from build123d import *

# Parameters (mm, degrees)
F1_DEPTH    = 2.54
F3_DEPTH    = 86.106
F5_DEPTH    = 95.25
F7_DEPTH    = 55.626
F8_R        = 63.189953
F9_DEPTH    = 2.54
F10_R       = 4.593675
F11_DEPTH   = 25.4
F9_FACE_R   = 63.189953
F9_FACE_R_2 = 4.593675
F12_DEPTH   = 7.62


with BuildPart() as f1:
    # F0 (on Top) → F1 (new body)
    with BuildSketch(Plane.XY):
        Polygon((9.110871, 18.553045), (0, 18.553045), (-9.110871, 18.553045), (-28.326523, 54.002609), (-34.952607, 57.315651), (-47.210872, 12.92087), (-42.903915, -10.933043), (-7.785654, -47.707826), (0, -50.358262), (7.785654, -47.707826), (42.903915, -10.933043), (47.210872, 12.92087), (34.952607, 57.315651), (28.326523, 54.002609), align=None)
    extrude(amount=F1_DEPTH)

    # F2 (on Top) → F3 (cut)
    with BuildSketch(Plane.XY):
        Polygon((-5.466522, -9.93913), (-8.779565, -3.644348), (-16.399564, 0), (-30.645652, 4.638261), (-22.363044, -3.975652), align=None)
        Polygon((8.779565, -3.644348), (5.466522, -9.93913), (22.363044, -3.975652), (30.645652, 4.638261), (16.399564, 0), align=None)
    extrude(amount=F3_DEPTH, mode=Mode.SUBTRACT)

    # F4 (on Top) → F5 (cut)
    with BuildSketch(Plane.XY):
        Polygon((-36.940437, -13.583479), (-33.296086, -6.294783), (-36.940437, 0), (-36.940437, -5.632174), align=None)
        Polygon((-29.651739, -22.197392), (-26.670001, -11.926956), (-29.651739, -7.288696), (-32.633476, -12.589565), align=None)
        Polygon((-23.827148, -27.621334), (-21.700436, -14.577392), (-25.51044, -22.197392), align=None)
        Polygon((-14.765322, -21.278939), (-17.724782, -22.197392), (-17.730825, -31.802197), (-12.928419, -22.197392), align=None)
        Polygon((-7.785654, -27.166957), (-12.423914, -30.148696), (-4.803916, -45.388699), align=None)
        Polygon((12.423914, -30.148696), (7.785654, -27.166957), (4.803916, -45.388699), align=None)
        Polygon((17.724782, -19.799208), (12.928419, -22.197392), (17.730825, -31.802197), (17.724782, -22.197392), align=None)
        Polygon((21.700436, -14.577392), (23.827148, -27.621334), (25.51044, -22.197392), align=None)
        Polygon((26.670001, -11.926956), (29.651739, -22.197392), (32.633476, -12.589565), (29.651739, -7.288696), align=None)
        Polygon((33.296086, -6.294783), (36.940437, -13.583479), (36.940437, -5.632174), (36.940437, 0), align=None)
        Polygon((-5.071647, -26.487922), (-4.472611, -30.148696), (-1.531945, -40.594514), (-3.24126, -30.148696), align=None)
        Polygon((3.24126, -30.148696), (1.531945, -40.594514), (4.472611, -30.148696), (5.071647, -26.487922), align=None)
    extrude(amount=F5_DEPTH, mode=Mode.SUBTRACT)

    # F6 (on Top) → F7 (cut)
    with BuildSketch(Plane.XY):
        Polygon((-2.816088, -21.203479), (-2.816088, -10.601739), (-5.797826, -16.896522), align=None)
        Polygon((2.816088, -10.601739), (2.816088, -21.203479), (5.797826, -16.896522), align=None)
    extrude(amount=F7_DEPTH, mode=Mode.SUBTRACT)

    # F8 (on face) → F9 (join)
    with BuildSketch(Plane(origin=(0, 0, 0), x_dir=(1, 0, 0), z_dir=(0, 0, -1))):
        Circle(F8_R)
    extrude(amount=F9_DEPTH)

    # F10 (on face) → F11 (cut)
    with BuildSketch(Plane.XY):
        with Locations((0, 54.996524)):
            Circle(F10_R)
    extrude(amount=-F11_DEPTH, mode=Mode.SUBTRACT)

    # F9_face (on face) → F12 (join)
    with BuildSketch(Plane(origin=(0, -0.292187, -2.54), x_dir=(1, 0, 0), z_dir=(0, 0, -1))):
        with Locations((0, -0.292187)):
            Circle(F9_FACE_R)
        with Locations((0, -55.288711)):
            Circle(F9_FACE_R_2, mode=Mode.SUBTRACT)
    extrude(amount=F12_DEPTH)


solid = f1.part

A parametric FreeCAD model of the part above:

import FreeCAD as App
import Part
import Sketcher

V = App.Vector
Q = App.Units.Quantity


def add_polygon(sketch, points):
    """Adds a closed chain of lines whose ends are joined by coincident constraints."""
    first, n = sketch.GeometryCount, len(points)
    for a, b in zip(points, points[1:] + points[:1]):
        sketch.addGeometry(Part.LineSegment(App.Vector(*a, 0), App.Vector(*b, 0)), False)
    for i in range(n):
        sketch.addConstraint(Sketcher.Constraint("Coincident", first + i, 2, first + (i + 1) % n, 1))

doc = App.newDocument("Part")
body = doc.addObject("PartDesign::Body", "Body")

# Sketch on XY plane
sketch1 = doc.addObject("Sketcher::SketchObject", "Sketch")
body.addObject(sketch1)
sketch1.AttachmentSupport = (doc.XY_Plane, [""])
sketch1.MapMode = "FlatFace"
add_polygon(sketch1, [(9, 19), (-9, 19), (-28, 54), (-35, 57), (-47, 13), (-43, -11), (-8, -48), (0, -50), (8, -48), (43, -11), (47, 13), (35, 57), (28, 54)])  # lines 0-12
sketch1.addConstraint([
    Sketcher.Constraint("Horizontal", 0),
    Sketcher.Constraint("Symmetric", 5, 2, 7, 2, -2),
    Sketcher.Constraint("Symmetric", 4, 2, 8, 2, -2),
    Sketcher.Constraint("Symmetric", 3, 2, 9, 2, -2),
    Sketcher.Constraint("Symmetric", 2, 2, 10, 2, -2),
    Sketcher.Constraint("Symmetric", 1, 2, 11, 2, -2),
    Sketcher.Constraint("PointOnObject", 6, 2, -2),
    Sketcher.Constraint("Equal", 1, 12),
    Sketcher.Constraint("DistanceX", 3, 2, 0, 2, Q("1.5 in")),
    Sketcher.Constraint("DistanceX", 0, 2, 0, 1, Q("18.221742 mm")),
    Sketcher.Constraint("Distance", 1, Q("40.32261 mm")),
    Sketcher.Constraint("Distance", 3, Q("46.056071 mm")),
    Sketcher.Constraint("Distance", 5, Q("50.849552 mm")),
    Sketcher.Constraint("Distance", 6, Q("8.224428 mm")),
    Sketcher.Constraint("DistanceY", -1, 1, 1, 2, Q("54.002609 mm")),
    Sketcher.Constraint("DistanceY", -1, 1, 2, 2, Q("57.315651 mm")),
    Sketcher.Constraint("DistanceY", -1, 1, 3, 2, Q("12.92087 mm")),
    Sketcher.Constraint("DistanceX", 3, 2, 1, 2, Q("18.884349 mm")),
    Sketcher.Constraint("DistanceY", 4, 2, 0, 2, Q("29.486088 mm")),
    Sketcher.Constraint("DistanceX", 4, 2, 1, 2, Q("14.577392 mm")),
    Sketcher.Constraint("DistanceX", 4, 2, 5, 2, Q("35.118261 mm")),
])
pad1 = doc.addObject("PartDesign::Pad", "Pad")
body.addObject(pad1)
pad1.Profile = sketch1
pad1.Length = Q("0.1 in")

# Sketch on XY plane
sketch2 = doc.addObject("Sketcher::SketchObject", "Sketch001")
body.addObject(sketch2)
sketch2.AttachmentSupport = (doc.XY_Plane, [""])
sketch2.MapMode = "FlatFace"
add_polygon(sketch2, [(-5, -10), (-9, -4), (-16, 0), (-31, 5), (-22, -4)])  # lines 0-4
add_polygon(sketch2, [(9, -4), (5, -10), (22, -4), (31, 5), (16, 0)])  # lines 5-9
sketch2.addConstraint([
    Sketcher.Constraint("Symmetric", 1, 2, 8, 2, -1, 1),
    Sketcher.Constraint("Symmetric", 4, 2, 5, 2, -2),
    Sketcher.Constraint("Symmetric", 3, 2, 6, 2, -2),
    Sketcher.Constraint("Symmetric", 2, 2, 7, 2, -2),
    Sketcher.Constraint("Symmetric", 0, 2, 9, 2, -2),
    Sketcher.Constraint("PointOnObject", 1, 2, -1),
    Sketcher.Constraint("DistanceX", 1, 2, 0, 2, Q("0.3 in")),
    Sketcher.Constraint("Distance", 2, Q("14.982139 mm")),
    Sketcher.Constraint("Distance", 3, Q("11.949941 mm")),
    Sketcher.Constraint("DistanceX", 2, 2, -1, 1, Q("30.645652 mm")),
    Sketcher.Constraint("DistanceY", -1, 1, 2, 2, Q("4.638261 mm")),
    Sketcher.Constraint("DistanceY", 4, 2, -1, 1, Q("9.93913 mm")),
    Sketcher.Constraint("DistanceY", 0, 2, 2, 2, Q("8.282609 mm")),
    Sketcher.Constraint("DistanceX", 3, 2, 1, 2, Q("5.96348 mm")),
    Sketcher.Constraint("DistanceX", 3, 2, 4, 2, Q("16.896522 mm")),
])
pocket1 = doc.addObject("PartDesign::Pocket", "Pocket")
body.addObject(pocket1)
pocket1.Profile = sketch2
pocket1.Length = Q("3.39 in")
pocket1.Reversed = True

# Sketch on XY plane
sketch3 = doc.addObject("Sketcher::SketchObject", "Sketch002")
body.addObject(sketch3)
sketch3.AttachmentSupport = (doc.XY_Plane, [""])
sketch3.MapMode = "FlatFace"
add_polygon(sketch3, [(-36.940437, -13.583479), (-33.296086, -6.294783), (-36.940437, 0)])  # lines 0-2
add_polygon(sketch3, [(-29.651739, -22.197392), (-26.670001, -11.926956), (-29.651739, -7.288696), (-32.633476, -12.589565)])  # lines 3-6
add_polygon(sketch3, [(-23.827148, -27.621334), (-21.700436, -14.577392), (-25.51044, -22.197392)])  # lines 7-9
add_polygon(sketch3, [(-14.765322, -21.278939), (-17.724782, -22.197392), (-17.730825, -31.802197), (-12.928419, -22.197392)])  # lines 10-13
add_polygon(sketch3, [(-7.785654, -27.166957), (-12.423914, -30.148696), (-4.803916, -45.388699)])  # lines 14-16
add_polygon(sketch3, [(12.423914, -30.148696), (7.785654, -27.166957), (4.803916, -45.388699)])  # lines 17-19
add_polygon(sketch3, [(17.724782, -19.799208), (12.928419, -22.197392), (17.730825, -31.802197), (17.724782, -22.197392)])  # lines 20-23
add_polygon(sketch3, [(21.700436, -14.577392), (23.827148, -27.621334), (25.51044, -22.197392)])  # lines 24-26
add_polygon(sketch3, [(26.670001, -11.926956), (29.651739, -22.197392), (32.633476, -12.589565), (29.651739, -7.288696)])  # lines 27-30
add_polygon(sketch3, [(33.296086, -6.294783), (36.940437, -13.583479), (36.940437, 0)])  # lines 31-33
add_polygon(sketch3, [(-5.071647, -26.487922), (-4.472611, -30.148696), (-1.531945, -40.594514), (-3.24126, -30.148696)])  # lines 34-37
add_polygon(sketch3, [(3.24126, -30.148696), (1.531945, -40.594514), (4.472611, -30.148696), (5.071647, -26.487922)])  # lines 38-41
sketch3.addConstraint([
    Sketcher.Constraint("Vertical", 2),
    Sketcher.Constraint("Vertical", 23),
    Sketcher.Constraint("Vertical", 32),
    Sketcher.Constraint("PointOnObject", 1, 2, -1),
    Sketcher.Constraint("PointOnObject", 32, 2, -1),
    Sketcher.Constraint("DistanceY", 6, 2, 7, 2, Q("0.3 in")),
    Sketcher.Constraint("DistanceY", 8, 2, 7, 2, Q("0.3 in")),
    Sketcher.Constraint("DistanceY", 10, 2, 7, 2, Q("0.3 in")),
    Sketcher.Constraint("DistanceY", 12, 2, 7, 2, Q("0.3 in")),
    Sketcher.Constraint("DistanceX", 14, 2, 15, 2, Q("0.2999999 in")),
    Sketcher.Constraint("DistanceY", 15, 2, 14, 2, Q("0.6000001 in")),
    Sketcher.Constraint("DistanceY", 18, 2, 14, 2, Q("0.6000001 in")),
    Sketcher.Constraint("DistanceX", 18, 2, 19, 2, Q("0.2999999 in")),
    Sketcher.Constraint("DistanceY", 18, 2, 19, 2, Q("0.6000001 in")),
    Sketcher.Constraint("DistanceY", 25, 2, 26, 2, Q("0.3 in")),
    Sketcher.Constraint("DistanceY", 22, 2, 26, 2, Q("0.3 in")),
    Sketcher.Constraint("DistanceY", 20, 2, 26, 2, Q("0.3 in")),
    Sketcher.Constraint("DistanceY", 27, 2, 26, 2, Q("0.3 in")),
    Sketcher.Constraint("DistanceX", 26, 2, 32, 2, Q("0.6 in")),
    Sketcher.Constraint("DistanceX", 3, 2, -1, 1, Q("1.05 in")),
    Sketcher.Constraint("DistanceX", -1, 1, 30, 2, Q("1.05 in")),
    Sketcher.Constraint("DistanceX", 8, 2, 7, 2, Q("0.1500002 in")),
    Sketcher.Constraint("DistanceX", 2, 2, 8, 2, Q("0.4499999 in")),
    Sketcher.Constraint("DistanceX", 26, 2, 25, 2, Q("0.1500002 in")),
    Sketcher.Constraint("DistanceX", 34, 2, 38, 2, Q("0.2363998 in")),
    Sketcher.Constraint("Distance", 4, Q("5.514002 mm")),
    Sketcher.Constraint("Distance", 12, Q("10.7385 mm")),
    Sketcher.Constraint("Distance", 21, Q("10.7385 mm")),
    Sketcher.Constraint("Distance", 30, Q("5.514002 mm")),
    Sketcher.Constraint("DistanceY", 2, 2, 2, 1, Q("13.583479 mm")),
    Sketcher.Constraint("DistanceY", 32, 1, 32, 2, Q("13.583479 mm")),
    Sketcher.Constraint("DistanceY", 15, 2, -1, 1, Q("45.388699 mm")),
    Sketcher.Constraint("DistanceX", 2, 2, 4, 2, Q("7.288698 mm")),
    Sketcher.Constraint("DistanceX", 2, 2, 6, 2, Q("7.288698 mm")),
    Sketcher.Constraint("DistanceY", 11, 2, 14, 2, Q("1.653501 mm")),
    Sketcher.Constraint("DistanceY", 21, 2, 19, 2, Q("1.653501 mm")),
    Sketcher.Constraint("DistanceX", 25, 2, 27, 2, Q("4.141299 mm")),
    Sketcher.Constraint("DistanceX", 25, 2, 29, 2, Q("4.141299 mm")),
    Sketcher.Constraint("DistanceY", 11, 2, 34, 2, Q("1.653501 mm")),
    Sketcher.Constraint("Distance", 0, Q("8.149011 mm")),
    Sketcher.Constraint("Distance", 9, Q("5.679139 mm")),
    Sketcher.Constraint("Distance", 13, Q("2.053721 mm")),
    Sketcher.Constraint("Distance", 16, Q("18.464091 mm")),
    Sketcher.Constraint("Distance", 18, Q("18.464091 mm")),
    Sketcher.Constraint("Distance", 25, Q("5.679139 mm")),
    Sketcher.Constraint("Distance", 31, Q("8.149011 mm")),
    Sketcher.Constraint("Distance", 35, Q("10.851849 mm")),
    Sketcher.Constraint("Distance", 37, Q("4.09287 mm")),
    Sketcher.Constraint("Distance", 39, Q("10.851849 mm")),
    Sketcher.Constraint("Distance", 41, Q("4.09287 mm")),
    Sketcher.Constraint("DistanceY", 23, 1, 23, 2, Q("2.398184 mm")),
    Sketcher.Constraint("DistanceX", 4, 2, -1, 1, Q("29.651739 mm")),
    Sketcher.Constraint("DistanceX", 9, 2, -1, 1, Q("23.827148 mm")),
    Sketcher.Constraint("DistanceX", 12, 2, -1, 1, Q("12.928419 mm")),
    Sketcher.Constraint("DistanceY", 13, 2, -1, 1, Q("21.278939 mm")),
    Sketcher.Constraint("DistanceX", -1, 1, 20, 2, Q("12.928419 mm")),
    Sketcher.Constraint("DistanceY", 23, 2, -1, 1, Q("19.799208 mm")),
    Sketcher.Constraint("DistanceX", -1, 1, 24, 2, Q("23.827148 mm")),
    Sketcher.Constraint("DistanceX", -1, 1, 25, 2, Q("25.51044 mm")),
    Sketcher.Constraint("DistanceX", 34, 2, -1, 1, Q("4.472611 mm")),
    Sketcher.Constraint("DistanceX", 36, 2, -1, 1, Q("3.24126 mm")),
    Sketcher.Constraint("DistanceX", -1, 1, 39, 2, Q("4.472611 mm")),
    Sketcher.Constraint("DistanceX", -1, 1, 41, 2, Q("3.24126 mm")),
    Sketcher.Constraint("DistanceX", 1, 2, 0, 2, Q("3.644351 mm")),
    Sketcher.Constraint("DistanceX", 2, 2, 5, 2, Q("4.306961 mm")),
    Sketcher.Constraint("DistanceY", 5, 2, 3, 2, Q("0.662609 mm")),
    Sketcher.Constraint("DistanceY", 6, 2, 0, 2, Q("15.902609 mm")),
    Sketcher.Constraint("DistanceY", 9, 2, 5, 2, Q("15.031769 mm")),
    Sketcher.Constraint("DistanceX", 3, 2, 10, 2, Q("8.945219 mm")),
    Sketcher.Constraint("DistanceX", 11, 2, 14, 2, Q("5.306911 mm")),
    Sketcher.Constraint("DistanceX", 14, 2, 16, 2, Q("4.63826 mm")),
    Sketcher.Constraint("DistanceX", 14, 2, 17, 2, Q("20.209568 mm")),
    Sketcher.Constraint("DistanceY", 14, 2, 17, 2, Q("2.981739 mm")),
    Sketcher.Constraint("DistanceX", 19, 2, 22, 2, Q("5.300868 mm")),
    Sketcher.Constraint("DistanceX", 26, 2, 28, 2, Q("10.93304 mm")),
    Sketcher.Constraint("DistanceY", 24, 2, 28, 2, Q("15.031769 mm")),
    Sketcher.Constraint("DistanceY", 28, 2, 29, 2, Q("5.300869 mm")),
    Sketcher.Constraint("DistanceX", 28, 2, 33, 2, Q("0.66261 mm")),
    Sketcher.Constraint("DistanceX", 15, 2, 35, 2, Q("3.271971 mm")),
    Sketcher.Constraint("DistanceY", 36, 2, 16, 2, Q("2.981739 mm")),
    Sketcher.Constraint("DistanceY", 37, 2, 12, 2, Q("4.29053 mm")),
    Sketcher.Constraint("DistanceY", 39, 2, 17, 2, Q("2.981739 mm")),
    Sketcher.Constraint("DistanceY", 40, 2, 20, 2, Q("4.29053 mm")),
    Sketcher.Constraint("DistanceY", 41, 2, 17, 2, Q("2.981739 mm")),
])
pocket2 = doc.addObject("PartDesign::Pocket", "Pocket001")
body.addObject(pocket2)
pocket2.Profile = sketch3
pocket2.Length = Q("3.75 in")
pocket2.Reversed = True

# Sketch on XY plane
sketch4 = doc.addObject("Sketcher::SketchObject", "Sketch003")
body.addObject(sketch4)
sketch4.AttachmentSupport = (doc.XY_Plane, [""])
sketch4.MapMode = "FlatFace"
add_polygon(sketch4, [(-3, -21), (-3, -11), (-6, -17)])  # lines 0-2
add_polygon(sketch4, [(3, -11), (3, -21), (6, -17)])  # lines 3-5
sketch4.addConstraint([
    Sketcher.Constraint("Vertical", 0),
    Sketcher.Constraint("Vertical", 3),
    Sketcher.Constraint("Symmetric", 2, 2, 3, 2, -2),
    Sketcher.Constraint("Symmetric", 1, 2, 4, 2, -2),
    Sketcher.Constraint("Horizontal", 0, 2, 5, 2),
    Sketcher.Constraint("DistanceY", 0, 1, 0, 2, Q("10.60174 mm")),
    Sketcher.Constraint("Distance", 2, Q("5.238381 mm")),
    Sketcher.Constraint("DistanceX", 0, 2, -1, 1, Q("2.816088 mm")),
    Sketcher.Constraint("DistanceY", 0, 2, -1, 1, Q("10.601739 mm")),
    Sketcher.Constraint("Distance", 1, Q("6.965275 mm")),
])
pocket3 = doc.addObject("PartDesign::Pocket", "Pocket002")
body.addObject(pocket3)
pocket3.Profile = sketch4
pocket3.Length = Q("2.19 in")
pocket3.Reversed = True

# Sketch on XY plane
sketch5 = doc.addObject("Sketcher::SketchObject", "Sketch004")
body.addObject(sketch5)
sketch5.AttachmentSupport = (doc.XY_Plane, [""])
sketch5.MapMode = "FlatFace"
sketch5.addGeometry(Part.Circle(V(0, 0, 0), V(0, 0, 1), 63), False)
sketch5.addConstraint([
    Sketcher.Constraint("Coincident", 0, 3, -1, 1),
    Sketcher.Constraint("Diameter", 0, Q("126.379906 mm")),
])
pad2 = doc.addObject("PartDesign::Pad", "Pad001")
body.addObject(pad2)
pad2.Profile = sketch5
pad2.Length = Q("0.1 in")
pad2.Reversed = True

# Sketch on XY plane
sketch6 = doc.addObject("Sketcher::SketchObject", "Sketch005")
body.addObject(sketch6)
sketch6.AttachmentSupport = (doc.XY_Plane, [""])
sketch6.MapMode = "FlatFace"
sketch6.addGeometry(Part.Circle(V(0, 55, 0), V(0, 0, 1), 4.6), False)
sketch6.addConstraint([
    Sketcher.Constraint("PointOnObject", 0, 3, -2),
    Sketcher.Constraint("Diameter", 0, Q("9.18735 mm")),
    Sketcher.Constraint("DistanceY", -1, 1, 0, 3, Q("54.996524 mm")),
])
pocket4 = doc.addObject("PartDesign::Pocket", "Pocket003")
body.addObject(pocket4)
pocket4.Profile = sketch6
pocket4.Length = Q("1 in")

# Sketch on XY plane
sketch7 = doc.addObject("Sketcher::SketchObject", "Sketch006")
body.addObject(sketch7)
sketch7.AttachmentSupport = (doc.XY_Plane, [""])
sketch7.MapMode = "FlatFace"
sketch7.AttachmentOffset = App.Placement(V(0, 0, -0.1 * 25.4), App.Rotation())
sketch7.addGeometry([
    Part.Circle(V(0, 0, 0), V(0, 0, 1), 63.2),
    Part.Circle(V(0, 55, 0), V(0, 0, 1), 4.6),
], False)
sketch7.addConstraint([
    Sketcher.Constraint("Coincident", 0, 3, -1, 1),
    Sketcher.Constraint("PointOnObject", 1, 3, -2),
    Sketcher.Constraint("Diameter", 1, Q("9.18735 mm")),
    Sketcher.Constraint("Diameter", 0, Q("126.379906 mm")),
    Sketcher.Constraint("DistanceY", -1, 1, 1, 3, Q("54.996524 mm")),
])
pad3 = doc.addObject("PartDesign::Pad", "Pad002")
body.addObject(pad3)
pad3.Profile = sketch7
pad3.Length = Q("0.3 in")
pad3.Reversed = True

doc.recompute()
